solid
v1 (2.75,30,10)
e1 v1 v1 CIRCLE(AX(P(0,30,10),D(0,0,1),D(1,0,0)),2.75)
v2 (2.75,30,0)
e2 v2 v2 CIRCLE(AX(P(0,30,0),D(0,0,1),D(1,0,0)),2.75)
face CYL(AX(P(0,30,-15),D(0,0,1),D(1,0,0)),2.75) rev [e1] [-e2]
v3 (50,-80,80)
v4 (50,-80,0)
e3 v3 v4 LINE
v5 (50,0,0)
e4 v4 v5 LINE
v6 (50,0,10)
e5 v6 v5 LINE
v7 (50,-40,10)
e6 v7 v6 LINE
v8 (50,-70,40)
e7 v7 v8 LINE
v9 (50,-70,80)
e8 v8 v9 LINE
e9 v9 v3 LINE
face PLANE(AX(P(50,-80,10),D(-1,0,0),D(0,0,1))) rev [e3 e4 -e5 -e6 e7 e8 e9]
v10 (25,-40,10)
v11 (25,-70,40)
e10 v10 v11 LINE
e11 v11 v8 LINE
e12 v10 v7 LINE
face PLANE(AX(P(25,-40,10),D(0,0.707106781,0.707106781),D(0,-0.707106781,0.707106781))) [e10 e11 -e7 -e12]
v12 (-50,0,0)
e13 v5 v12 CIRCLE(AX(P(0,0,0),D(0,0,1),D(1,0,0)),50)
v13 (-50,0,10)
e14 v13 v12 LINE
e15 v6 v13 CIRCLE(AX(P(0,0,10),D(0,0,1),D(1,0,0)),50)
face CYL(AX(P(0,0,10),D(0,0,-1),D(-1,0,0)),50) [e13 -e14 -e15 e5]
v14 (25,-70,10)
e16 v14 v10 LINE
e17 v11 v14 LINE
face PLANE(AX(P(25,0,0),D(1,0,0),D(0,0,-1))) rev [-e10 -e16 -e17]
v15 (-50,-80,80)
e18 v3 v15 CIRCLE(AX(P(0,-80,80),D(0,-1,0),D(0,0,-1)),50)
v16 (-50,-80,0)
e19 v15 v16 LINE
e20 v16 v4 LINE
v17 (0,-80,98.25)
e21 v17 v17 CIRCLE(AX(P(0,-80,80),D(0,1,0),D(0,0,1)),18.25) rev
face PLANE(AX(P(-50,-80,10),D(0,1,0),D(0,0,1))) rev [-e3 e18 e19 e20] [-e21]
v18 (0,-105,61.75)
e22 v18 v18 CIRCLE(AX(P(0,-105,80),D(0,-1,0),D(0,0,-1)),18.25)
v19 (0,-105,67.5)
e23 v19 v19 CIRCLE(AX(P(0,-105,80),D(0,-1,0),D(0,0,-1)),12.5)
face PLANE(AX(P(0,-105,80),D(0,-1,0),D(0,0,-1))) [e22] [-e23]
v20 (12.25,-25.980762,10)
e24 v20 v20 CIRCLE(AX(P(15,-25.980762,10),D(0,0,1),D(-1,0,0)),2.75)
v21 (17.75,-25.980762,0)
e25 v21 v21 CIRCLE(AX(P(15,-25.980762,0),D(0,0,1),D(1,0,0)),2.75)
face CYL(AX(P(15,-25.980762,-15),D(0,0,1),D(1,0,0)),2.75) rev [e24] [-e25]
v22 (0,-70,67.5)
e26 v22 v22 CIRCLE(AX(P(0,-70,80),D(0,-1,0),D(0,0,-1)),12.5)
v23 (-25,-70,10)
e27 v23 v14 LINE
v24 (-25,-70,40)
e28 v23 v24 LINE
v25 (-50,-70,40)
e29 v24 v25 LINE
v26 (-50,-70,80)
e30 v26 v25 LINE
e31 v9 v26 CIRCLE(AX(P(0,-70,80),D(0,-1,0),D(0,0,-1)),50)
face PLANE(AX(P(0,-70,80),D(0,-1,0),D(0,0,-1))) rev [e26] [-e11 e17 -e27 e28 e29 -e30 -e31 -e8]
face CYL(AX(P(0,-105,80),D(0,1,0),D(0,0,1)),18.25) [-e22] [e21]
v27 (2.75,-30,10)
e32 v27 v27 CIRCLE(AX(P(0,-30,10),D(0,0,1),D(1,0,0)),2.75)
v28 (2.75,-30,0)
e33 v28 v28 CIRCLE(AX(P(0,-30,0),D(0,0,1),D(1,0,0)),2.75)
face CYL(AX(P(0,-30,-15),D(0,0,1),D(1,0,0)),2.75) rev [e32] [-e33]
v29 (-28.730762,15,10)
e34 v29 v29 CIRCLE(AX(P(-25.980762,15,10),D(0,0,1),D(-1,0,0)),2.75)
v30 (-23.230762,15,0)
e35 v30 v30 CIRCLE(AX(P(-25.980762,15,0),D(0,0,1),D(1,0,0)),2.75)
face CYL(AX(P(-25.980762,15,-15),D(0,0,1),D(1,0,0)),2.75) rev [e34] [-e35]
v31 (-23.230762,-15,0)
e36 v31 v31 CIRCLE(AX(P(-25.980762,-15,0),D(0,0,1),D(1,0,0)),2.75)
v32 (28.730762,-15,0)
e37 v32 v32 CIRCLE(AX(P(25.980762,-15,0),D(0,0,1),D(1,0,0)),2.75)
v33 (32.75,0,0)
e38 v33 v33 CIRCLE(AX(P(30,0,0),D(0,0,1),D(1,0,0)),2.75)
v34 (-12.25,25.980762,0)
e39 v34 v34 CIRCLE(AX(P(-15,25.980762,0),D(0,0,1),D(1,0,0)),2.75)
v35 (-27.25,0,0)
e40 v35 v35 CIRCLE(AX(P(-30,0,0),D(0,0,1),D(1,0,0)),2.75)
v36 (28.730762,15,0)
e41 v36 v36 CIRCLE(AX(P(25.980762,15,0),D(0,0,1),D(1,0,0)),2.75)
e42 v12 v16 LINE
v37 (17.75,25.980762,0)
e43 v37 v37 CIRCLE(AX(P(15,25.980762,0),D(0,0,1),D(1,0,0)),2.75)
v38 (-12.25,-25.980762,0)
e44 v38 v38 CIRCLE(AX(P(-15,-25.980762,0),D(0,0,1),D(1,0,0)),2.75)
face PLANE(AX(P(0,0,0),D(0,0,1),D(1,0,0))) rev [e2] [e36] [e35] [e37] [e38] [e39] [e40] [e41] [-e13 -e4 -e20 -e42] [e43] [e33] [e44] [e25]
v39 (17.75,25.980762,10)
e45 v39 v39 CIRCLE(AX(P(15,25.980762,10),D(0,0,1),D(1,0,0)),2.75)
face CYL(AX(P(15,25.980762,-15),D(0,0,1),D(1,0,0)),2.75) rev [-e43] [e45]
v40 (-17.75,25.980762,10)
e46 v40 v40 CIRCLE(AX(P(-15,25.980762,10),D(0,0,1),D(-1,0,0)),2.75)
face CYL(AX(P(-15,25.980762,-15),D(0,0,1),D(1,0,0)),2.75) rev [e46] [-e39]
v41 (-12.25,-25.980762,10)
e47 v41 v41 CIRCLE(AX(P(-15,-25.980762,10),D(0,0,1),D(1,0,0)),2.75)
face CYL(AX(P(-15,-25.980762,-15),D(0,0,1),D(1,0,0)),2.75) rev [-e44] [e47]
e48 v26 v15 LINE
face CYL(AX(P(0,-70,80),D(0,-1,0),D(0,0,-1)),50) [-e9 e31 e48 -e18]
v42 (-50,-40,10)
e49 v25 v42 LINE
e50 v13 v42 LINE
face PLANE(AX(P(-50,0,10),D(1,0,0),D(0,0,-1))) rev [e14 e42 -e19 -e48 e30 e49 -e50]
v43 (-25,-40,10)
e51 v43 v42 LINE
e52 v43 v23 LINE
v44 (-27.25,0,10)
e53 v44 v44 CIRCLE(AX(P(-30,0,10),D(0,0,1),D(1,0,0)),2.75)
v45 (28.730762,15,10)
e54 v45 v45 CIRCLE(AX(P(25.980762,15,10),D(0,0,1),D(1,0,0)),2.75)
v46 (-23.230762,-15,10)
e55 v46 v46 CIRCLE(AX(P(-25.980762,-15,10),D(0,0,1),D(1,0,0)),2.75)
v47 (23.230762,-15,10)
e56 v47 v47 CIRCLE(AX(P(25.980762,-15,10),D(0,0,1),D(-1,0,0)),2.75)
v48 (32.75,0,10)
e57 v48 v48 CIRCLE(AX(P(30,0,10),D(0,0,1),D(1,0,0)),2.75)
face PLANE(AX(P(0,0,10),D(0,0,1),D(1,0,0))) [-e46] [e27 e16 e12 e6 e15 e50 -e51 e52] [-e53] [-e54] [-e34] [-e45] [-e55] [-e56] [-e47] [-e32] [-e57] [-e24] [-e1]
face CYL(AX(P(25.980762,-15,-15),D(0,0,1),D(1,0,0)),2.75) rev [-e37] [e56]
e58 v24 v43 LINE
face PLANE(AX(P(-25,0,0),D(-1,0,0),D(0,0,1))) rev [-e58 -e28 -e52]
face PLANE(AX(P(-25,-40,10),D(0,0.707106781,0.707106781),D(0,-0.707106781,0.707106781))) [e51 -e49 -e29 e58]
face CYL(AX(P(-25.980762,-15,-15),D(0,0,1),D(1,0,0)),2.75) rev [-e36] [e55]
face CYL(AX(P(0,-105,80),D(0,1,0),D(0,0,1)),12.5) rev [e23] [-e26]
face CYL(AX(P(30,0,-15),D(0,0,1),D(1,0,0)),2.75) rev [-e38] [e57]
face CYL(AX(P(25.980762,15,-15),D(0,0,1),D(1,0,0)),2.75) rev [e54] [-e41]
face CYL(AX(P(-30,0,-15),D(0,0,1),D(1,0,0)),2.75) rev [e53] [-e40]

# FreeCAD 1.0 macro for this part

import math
import FreeCAD as App
import Part
import Sketcher
from FreeCAD import Vector
Q = App.Units.Quantity


def add_polygon(sketch, points):
    """Adds a closed chain of lines whose ends are joined by coincident constraints."""
    first, n = sketch.GeometryCount, len(points)
    for a, b in zip(points, points[1:] + points[:1]):
        sketch.addGeometry(Part.LineSegment(App.Vector(*a, 0), App.Vector(*b, 0)), False)
    for i in range(n):
        sketch.addConstraint(Sketcher.Constraint("Coincident", first + i, 2, first + (i + 1) % n, 1))

doc = App.newDocument("Part")
body = doc.addObject("PartDesign::Body", "Body")

sketch1 = body.newObject("Sketcher::SketchObject", "Sketch")
sketch1.AttachmentSupport = (doc.getObject("XY_Plane"), [""])
sketch1.MapMode = "FlatFace"
sketch1.addGeometry(Part.LineSegment(Vector(-50, 0, 0), Vector(-50, -80, 0)), False)
sketch1.addGeometry(Part.LineSegment(Vector(-50, -80, 0), Vector(50, -80, 0)), False)
sketch1.addGeometry(Part.LineSegment(Vector(50, -80, 0), Vector(50, 0, 0)), False)
sketch1.addGeometry(Part.ArcOfCircle(Part.Circle(Vector(0, 0, 0), Vector(0, 0, 1), 50), math.radians(0), math.radians(180)), False)
sketch1.addConstraint(Sketcher.Constraint("Coincident", 0, 2, 1, 1))
sketch1.addConstraint(Sketcher.Constraint("Coincident", 1, 2, 2, 1))
sketch1.addConstraint(Sketcher.Constraint("Tangent", 2, 2, 3, 1))
sketch1.addConstraint(Sketcher.Constraint("Tangent", 3, 2, 0, 1))
sketch1.addConstraint(Sketcher.Constraint("Vertical", 0))
sketch1.addConstraint(Sketcher.Constraint("Horizontal", 1))
sketch1.addConstraint(Sketcher.Constraint("Vertical", 2))
sketch1.addConstraint(Sketcher.Constraint("Coincident", 3, 3, -1, 1))
sketch1.addConstraint(Sketcher.Constraint("Radius", 3, Q("50 mm")))
sketch1.addConstraint(Sketcher.Constraint("DistanceY", 0, 2, 0, 1, Q("80 mm")))
pad1 = body.newObject("PartDesign::Pad", "Pad")
pad1.Profile = sketch1
pad1.Length = 10

sketch2 = body.newObject("Sketcher::SketchObject", "Sketch001")
sketch2.AttachmentSupport = (doc.getObject("XZ_Plane"), [""])
sketch2.MapMode = "FlatFace"
sketch2.AttachmentOffset = App.Placement(Vector(0, 0, 80), App.Rotation())
sketch2.addGeometry(Part.LineSegment(Vector(50, 10, 0), Vector(50, 80, 0)), False)
sketch2.addGeometry(Part.ArcOfCircle(Part.Circle(Vector(0, 80, 0), Vector(0, 0, 1), 50), math.radians(0), math.radians(180)), False)
sketch2.addGeometry(Part.LineSegment(Vector(-50, 80, 0), Vector(-50, 10, 0)), False)
sketch2.addGeometry(Part.LineSegment(Vector(-50, 10, 0), Vector(50, 10, 0)), False)
sketch2.addConstraint(Sketcher.Constraint("Tangent", 0, 2, 1, 1))
sketch2.addConstraint(Sketcher.Constraint("Tangent", 1, 2, 2, 1))
sketch2.addConstraint(Sketcher.Constraint("Coincident", 2, 2, 3, 1))
sketch2.addConstraint(Sketcher.Constraint("Coincident", 3, 2, 0, 1))
sketch2.addConstraint(Sketcher.Constraint("Vertical", 0))
sketch2.addConstraint(Sketcher.Constraint("Vertical", 2))
sketch2.addConstraint(Sketcher.Constraint("Horizontal", 3))
sketch2.addConstraint(Sketcher.Constraint("PointOnObject", 1, 3, -2))
sketch2.addConstraint(Sketcher.Constraint("Radius", 1, Q("50 mm")))
sketch2.addConstraint(Sketcher.Constraint("DistanceY", 0, 1, 0, 2, Q("70 mm")))
sketch2.addConstraint(Sketcher.Constraint("DistanceY", -1, 1, 1, 3, Q("80 mm")))
pad2 = body.newObject("PartDesign::Pad", "Pad001")
pad2.Profile = sketch2
pad2.Length = 10
pad2.Reversed = True

sketch3 = body.newObject("Sketcher::SketchObject", "Sketch002")
sketch3.AttachmentSupport = (doc.getObject("YZ_Plane"), [""])
sketch3.MapMode = "FlatFace"
sketch3.AttachmentOffset = App.Placement(Vector(0, 0, -50), App.Rotation())
add_polygon(sketch3, [(-70, 40), (-40, 10), (-70, 10)])
sketch3.addConstraint(Sketcher.Constraint("Horizontal", 1))
sketch3.addConstraint(Sketcher.Constraint("Vertical", 2))
sketch3.addConstraint(Sketcher.Constraint("Equal", 1, 2))
sketch3.addConstraint(Sketcher.Constraint("DistanceX", 1, 2, 1, 1, Q("30 mm")))
sketch3.addConstraint(Sketcher.Constraint("DistanceX", 0, 2, -1, 1, Q("40 mm")))
sketch3.addConstraint(Sketcher.Constraint("DistanceY", -1, 1, 0, 2, Q("10 mm")))
pad3 = body.newObject("PartDesign::Pad", "Pad002")
pad3.Profile = sketch3
pad3.Length = 25

sketch4 = body.newObject("Sketcher::SketchObject", "Sketch003")
sketch4.AttachmentSupport = (doc.getObject("YZ_Plane"), [""])
sketch4.MapMode = "FlatFace"
sketch4.AttachmentOffset = App.Placement(Vector(0, 0, 50), App.Rotation())
add_polygon(sketch4, [(-70, 10), (-40, 10), (-70, 40)])
sketch4.addConstraint(Sketcher.Constraint("Horizontal", 0))
sketch4.addConstraint(Sketcher.Constraint("Vertical", 2))
sketch4.addConstraint(Sketcher.Constraint("Equal", 0, 2))
sketch4.addConstraint(Sketcher.Constraint("DistanceX", 0, 1, 0, 2, Q("30 mm")))
sketch4.addConstraint(Sketcher.Constraint("DistanceX", 0, 2, -1, 1, Q("40 mm")))
sketch4.addConstraint(Sketcher.Constraint("DistanceY", -1, 1, 0, 2, Q("10 mm")))
pad4 = body.newObject("PartDesign::Pad", "Pad003")
pad4.Profile = sketch4
pad4.Length = 25
pad4.Reversed = True

sketch5 = body.newObject("Sketcher::SketchObject", "Sketch004")
sketch5.AttachmentSupport = (doc.getObject("XY_Plane"), [""])
sketch5.MapMode = "FlatFace"
sketch5.AttachmentOffset = App.Placement(Vector(0, 0, 10), App.Rotation())
sketch5.addGeometry(Part.Circle(Vector(0, 30, 0), Vector(0, 0, 1), 2.8), False)
sketch5.addGeometry(Part.Circle(Vector(30, 0, 0), Vector(0, 0, 1), 2.8), False)
sketch5.addGeometry(Part.Circle(Vector(0, -30, 0), Vector(0, 0, 1), 2.8), False)
sketch5.addGeometry(Part.Circle(Vector(-30, 0, 0), Vector(0, 0, 1), 2.8), False)
sketch5.addGeometry(Part.Circle(Vector(15, 26, 0), Vector(0, 0, 1), 2.8), False)
sketch5.addGeometry(Part.Circle(Vector(26, 15, 0), Vector(0, 0, 1), 2.8), False)
sketch5.addGeometry(Part.Circle(Vector(15, -26, 0), Vector(0, 0, 1), 2.8), False)
sketch5.addGeometry(Part.Circle(Vector(26, -15, 0), Vector(0, 0, 1), 2.8), False)
sketch5.addGeometry(Part.Circle(Vector(-15, 26, 0), Vector(0, 0, 1), 2.8), False)
sketch5.addGeometry(Part.Circle(Vector(-26, 15, 0), Vector(0, 0, 1), 2.8), False)
sketch5.addGeometry(Part.Circle(Vector(-26, -15, 0), Vector(0, 0, 1), 2.8), False)
sketch5.addGeometry(Part.Circle(Vector(-15, -26, 0), Vector(0, 0, 1), 2.8), False)
sketch5.addConstraint(Sketcher.Constraint("Equal", 0, 1))
sketch5.addConstraint(Sketcher.Constraint("Equal", 1, 2))
sketch5.addConstraint(Sketcher.Constraint("Equal", 2, 3))
sketch5.addConstraint(Sketcher.Constraint("Equal", 3, 4))
sketch5.addConstraint(Sketcher.Constraint("Equal", 4, 5))
sketch5.addConstraint(Sketcher.Constraint("Equal", 5, 6))
sketch5.addConstraint(Sketcher.Constraint("Equal", 6, 7))
sketch5.addConstraint(Sketcher.Constraint("Equal", 7, 8))
sketch5.addConstraint(Sketcher.Constraint("Equal", 8, 9))
sketch5.addConstraint(Sketcher.Constraint("Equal", 9, 10))
sketch5.addConstraint(Sketcher.Constraint("Equal", 10, 11))
sketch5.addConstraint(Sketcher.Constraint("Symmetric", 0, 3, 2, 3, -1, 1))
sketch5.addConstraint(Sketcher.Constraint("Symmetric", 1, 3, 3, 3, -1, 1))
sketch5.addConstraint(Sketcher.Constraint("Symmetric", 6, 3, 8, 3, -1, 1))
sketch5.addConstraint(Sketcher.Constraint("Symmetric", 7, 3, 9, 3, -1, 1))
sketch5.addConstraint(Sketcher.Constraint("Symmetric", 5, 3, 10, 3, -1, 1))
sketch5.addConstraint(Sketcher.Constraint("Symmetric", 4, 3, 11, 3, -1, 1))
sketch5.addConstraint(Sketcher.Constraint("Symmetric", 4, 3, 8, 3, -2))
sketch5.addConstraint(Sketcher.Constraint("Symmetric", 5, 3, 9, 3, -2))
sketch5.addConstraint(Sketcher.Constraint("PointOnObject", 0, 3, -2))
sketch5.addConstraint(Sketcher.Constraint("PointOnObject", 1, 3, -1))
sketch5.addConstraint(Sketcher.Constraint("Diameter", 0, Q("5.5 mm")))
sketch5.addConstraint(Sketcher.Constraint("DistanceY", -1, 1, 0, 3, Q("30 mm")))
sketch5.addConstraint(Sketcher.Constraint("DistanceX", -1, 1, 1, 3, Q("30 mm")))
sketch5.addConstraint(Sketcher.Constraint("DistanceX", -1, 1, 4, 3, Q("15 mm")))
sketch5.addConstraint(Sketcher.Constraint("DistanceY", -1, 1, 5, 3, Q("15 mm")))
sketch5.addConstraint(Sketcher.Constraint("DistanceY", -1, 1, 4, 3, Q("25.980762 mm")))
sketch5.addConstraint(Sketcher.Constraint("DistanceX", -1, 1, 5, 3, Q("25.980762 mm")))
pocket1 = body.newObject("PartDesign::Pocket", "Pocket")
pocket1.Profile = sketch5
pocket1.Length = 25

sketch6 = body.newObject("Sketcher::SketchObject", "Sketch005")
sketch6.AttachmentSupport = (doc.getObject("XZ_Plane"), [""])
sketch6.MapMode = "FlatFace"
sketch6.AttachmentOffset = App.Placement(Vector(0, 0, 80), App.Rotation())
sketch6.addGeometry(Part.Circle(Vector(0, 80, 0), Vector(0, 0, 1), 18), False)
sketch6.addGeometry(Part.Circle(Vector(0, 80, 0), Vector(0, 0, 1), 12), False)
sketch6.addConstraint(Sketcher.Constraint("Coincident", 1, 3, 0, 3))
sketch6.addConstraint(Sketcher.Constraint("PointOnObject", 0, 3, -2))
sketch6.addConstraint(Sketcher.Constraint("Diameter", 1, Q("25 mm")))
sketch6.addConstraint(Sketcher.Constraint("Diameter", 0, Q("36.5 mm")))
sketch6.addConstraint(Sketcher.Constraint("DistanceY", -1, 1, 0, 3, Q("80 mm")))
pad5 = body.newObject("PartDesign::Pad", "Pad004")
pad5.Profile = sketch6
pad5.Length = 25

sketch7 = body.newObject("Sketcher::SketchObject", "Sketch006")
sketch7.AttachmentSupport = (doc.getObject("XZ_Plane"), [""])
sketch7.MapMode = "FlatFace"
sketch7.AttachmentOffset = App.Placement(Vector(0, 0, 70), App.Rotation())
sketch7.addGeometry(Part.Circle(Vector(0, 80, 0), Vector(0, 0, 1), 12), False)
sketch7.addConstraint(Sketcher.Constraint("PointOnObject", 0, 3, -2))
sketch7.addConstraint(Sketcher.Constraint("Diameter", 0, Q("25 mm")))
sketch7.addConstraint(Sketcher.Constraint("DistanceY", -1, 1, 0, 3, Q("80 mm")))
pocket2 = body.newObject("PartDesign::Pocket", "Pocket001")
pocket2.Profile = sketch7
pocket2.Length = 10
pocket2.Reversed = True

doc.recompute()
